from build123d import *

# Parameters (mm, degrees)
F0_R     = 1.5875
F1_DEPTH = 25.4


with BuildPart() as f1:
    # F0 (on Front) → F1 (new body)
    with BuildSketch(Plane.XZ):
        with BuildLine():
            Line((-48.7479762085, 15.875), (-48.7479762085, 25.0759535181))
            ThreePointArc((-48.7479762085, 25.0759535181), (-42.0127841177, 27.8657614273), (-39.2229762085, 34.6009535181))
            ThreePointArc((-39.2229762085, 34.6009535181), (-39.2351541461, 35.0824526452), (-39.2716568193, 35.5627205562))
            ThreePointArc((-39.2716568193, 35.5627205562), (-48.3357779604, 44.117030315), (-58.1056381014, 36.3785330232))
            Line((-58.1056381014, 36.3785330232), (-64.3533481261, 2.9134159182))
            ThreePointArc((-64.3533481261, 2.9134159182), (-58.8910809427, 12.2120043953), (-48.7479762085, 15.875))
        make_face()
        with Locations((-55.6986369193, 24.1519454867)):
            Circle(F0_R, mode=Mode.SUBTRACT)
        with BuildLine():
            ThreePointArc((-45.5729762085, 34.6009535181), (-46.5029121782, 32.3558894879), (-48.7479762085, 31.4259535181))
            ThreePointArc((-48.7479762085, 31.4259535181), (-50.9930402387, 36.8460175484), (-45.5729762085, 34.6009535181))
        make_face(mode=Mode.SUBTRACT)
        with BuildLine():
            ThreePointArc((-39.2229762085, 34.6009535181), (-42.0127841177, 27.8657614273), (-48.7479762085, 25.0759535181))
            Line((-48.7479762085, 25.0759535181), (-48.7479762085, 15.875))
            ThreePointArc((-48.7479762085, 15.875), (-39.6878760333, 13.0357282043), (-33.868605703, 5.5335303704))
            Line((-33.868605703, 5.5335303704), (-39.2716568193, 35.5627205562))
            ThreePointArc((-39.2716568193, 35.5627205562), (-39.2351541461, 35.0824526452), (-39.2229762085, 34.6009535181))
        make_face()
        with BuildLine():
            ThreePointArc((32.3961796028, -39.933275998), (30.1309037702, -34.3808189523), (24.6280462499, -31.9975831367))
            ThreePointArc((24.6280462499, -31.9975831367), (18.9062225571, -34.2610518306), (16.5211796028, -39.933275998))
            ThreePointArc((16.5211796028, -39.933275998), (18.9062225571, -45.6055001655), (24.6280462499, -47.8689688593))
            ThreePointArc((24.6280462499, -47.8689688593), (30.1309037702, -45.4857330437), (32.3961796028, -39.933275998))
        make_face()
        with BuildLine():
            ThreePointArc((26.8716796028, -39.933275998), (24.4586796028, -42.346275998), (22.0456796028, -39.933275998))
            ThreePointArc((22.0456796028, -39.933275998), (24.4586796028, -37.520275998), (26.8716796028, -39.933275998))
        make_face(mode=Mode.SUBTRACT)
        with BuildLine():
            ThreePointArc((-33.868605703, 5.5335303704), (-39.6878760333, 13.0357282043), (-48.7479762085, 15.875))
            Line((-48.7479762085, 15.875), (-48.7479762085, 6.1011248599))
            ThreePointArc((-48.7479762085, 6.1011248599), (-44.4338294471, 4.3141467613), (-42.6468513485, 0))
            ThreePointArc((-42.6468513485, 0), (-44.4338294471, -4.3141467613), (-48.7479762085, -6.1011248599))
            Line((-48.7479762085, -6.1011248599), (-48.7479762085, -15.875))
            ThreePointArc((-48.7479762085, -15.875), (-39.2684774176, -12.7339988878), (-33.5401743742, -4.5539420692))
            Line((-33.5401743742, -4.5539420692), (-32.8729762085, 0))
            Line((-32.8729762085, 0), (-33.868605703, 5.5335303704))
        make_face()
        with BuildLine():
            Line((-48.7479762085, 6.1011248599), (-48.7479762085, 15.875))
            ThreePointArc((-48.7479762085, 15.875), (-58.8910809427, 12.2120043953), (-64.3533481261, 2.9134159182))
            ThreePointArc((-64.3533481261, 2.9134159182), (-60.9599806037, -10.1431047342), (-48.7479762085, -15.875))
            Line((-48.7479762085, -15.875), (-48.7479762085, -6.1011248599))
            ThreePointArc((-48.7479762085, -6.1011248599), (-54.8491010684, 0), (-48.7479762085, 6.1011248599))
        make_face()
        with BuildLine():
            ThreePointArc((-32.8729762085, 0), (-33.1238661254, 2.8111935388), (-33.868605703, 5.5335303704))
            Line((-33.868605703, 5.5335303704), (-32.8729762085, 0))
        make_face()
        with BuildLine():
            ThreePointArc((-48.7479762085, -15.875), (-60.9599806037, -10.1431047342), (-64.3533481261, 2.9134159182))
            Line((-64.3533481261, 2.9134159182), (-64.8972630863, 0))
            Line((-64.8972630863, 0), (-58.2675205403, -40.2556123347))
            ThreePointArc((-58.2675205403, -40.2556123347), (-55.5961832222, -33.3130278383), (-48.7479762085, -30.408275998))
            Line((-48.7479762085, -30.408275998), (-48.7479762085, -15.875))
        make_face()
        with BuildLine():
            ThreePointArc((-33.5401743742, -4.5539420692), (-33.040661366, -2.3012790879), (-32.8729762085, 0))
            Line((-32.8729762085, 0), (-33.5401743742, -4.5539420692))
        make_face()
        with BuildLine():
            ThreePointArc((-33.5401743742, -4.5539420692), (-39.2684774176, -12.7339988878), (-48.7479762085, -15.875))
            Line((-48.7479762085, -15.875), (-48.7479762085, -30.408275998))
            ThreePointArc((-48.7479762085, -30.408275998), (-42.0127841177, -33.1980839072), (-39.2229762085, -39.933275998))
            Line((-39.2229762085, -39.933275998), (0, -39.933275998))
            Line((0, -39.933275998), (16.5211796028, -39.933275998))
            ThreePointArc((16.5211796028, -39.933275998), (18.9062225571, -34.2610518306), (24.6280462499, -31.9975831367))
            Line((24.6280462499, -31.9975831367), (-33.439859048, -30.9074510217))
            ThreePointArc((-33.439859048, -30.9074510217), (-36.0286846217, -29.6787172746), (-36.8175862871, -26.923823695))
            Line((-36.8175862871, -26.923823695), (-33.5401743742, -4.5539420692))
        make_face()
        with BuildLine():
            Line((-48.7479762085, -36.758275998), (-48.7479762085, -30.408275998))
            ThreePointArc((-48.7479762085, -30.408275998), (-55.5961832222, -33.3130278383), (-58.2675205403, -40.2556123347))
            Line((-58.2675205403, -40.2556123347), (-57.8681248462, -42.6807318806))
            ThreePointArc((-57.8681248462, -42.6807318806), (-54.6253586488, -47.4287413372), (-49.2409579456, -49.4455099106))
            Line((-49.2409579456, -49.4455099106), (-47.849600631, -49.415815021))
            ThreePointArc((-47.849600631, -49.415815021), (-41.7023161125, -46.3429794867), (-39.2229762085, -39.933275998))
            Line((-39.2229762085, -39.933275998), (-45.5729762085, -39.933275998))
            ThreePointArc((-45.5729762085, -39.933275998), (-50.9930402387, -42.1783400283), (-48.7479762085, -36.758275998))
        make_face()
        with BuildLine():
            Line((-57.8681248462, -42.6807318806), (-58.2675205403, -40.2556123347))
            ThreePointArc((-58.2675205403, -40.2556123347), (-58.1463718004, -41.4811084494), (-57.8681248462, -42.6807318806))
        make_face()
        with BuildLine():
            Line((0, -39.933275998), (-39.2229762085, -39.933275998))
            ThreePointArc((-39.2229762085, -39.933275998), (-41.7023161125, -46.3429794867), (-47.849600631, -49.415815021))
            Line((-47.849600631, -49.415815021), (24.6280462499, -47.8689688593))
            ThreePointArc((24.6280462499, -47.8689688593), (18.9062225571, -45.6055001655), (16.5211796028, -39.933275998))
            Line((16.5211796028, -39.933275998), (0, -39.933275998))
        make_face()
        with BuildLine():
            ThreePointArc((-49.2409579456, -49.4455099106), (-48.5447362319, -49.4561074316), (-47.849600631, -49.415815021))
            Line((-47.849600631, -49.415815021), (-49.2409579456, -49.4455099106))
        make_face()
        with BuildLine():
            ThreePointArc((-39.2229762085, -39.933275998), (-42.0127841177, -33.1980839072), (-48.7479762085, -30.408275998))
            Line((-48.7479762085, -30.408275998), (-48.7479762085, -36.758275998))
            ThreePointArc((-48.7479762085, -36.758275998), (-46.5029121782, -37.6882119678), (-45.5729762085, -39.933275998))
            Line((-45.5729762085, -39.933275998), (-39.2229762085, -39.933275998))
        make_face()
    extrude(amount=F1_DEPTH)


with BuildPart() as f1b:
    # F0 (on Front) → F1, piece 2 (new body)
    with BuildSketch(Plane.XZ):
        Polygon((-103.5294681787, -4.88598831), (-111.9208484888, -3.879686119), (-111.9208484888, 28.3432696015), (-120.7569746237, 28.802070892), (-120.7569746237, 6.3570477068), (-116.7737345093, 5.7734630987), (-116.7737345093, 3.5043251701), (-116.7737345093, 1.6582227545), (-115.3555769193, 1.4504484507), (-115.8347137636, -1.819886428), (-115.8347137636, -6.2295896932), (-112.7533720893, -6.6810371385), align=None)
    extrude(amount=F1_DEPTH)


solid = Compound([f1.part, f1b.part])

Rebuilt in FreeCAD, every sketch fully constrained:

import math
import FreeCAD as App
import Part
import Sketcher
from FreeCAD import Vector
Q = App.Units.Quantity


def add_polygon(sketch, points):
    """Adds a closed chain of lines whose ends are joined by coincident constraints."""
    first, n = sketch.GeometryCount, len(points)
    for a, b in zip(points, points[1:] + points[:1]):
        sketch.addGeometry(Part.LineSegment(App.Vector(*a, 0), App.Vector(*b, 0)), False)
    for i in range(n):
        sketch.addConstraint(Sketcher.Constraint("Coincident", first + i, 2, first + (i + 1) % n, 1))

doc = App.newDocument("Part")
params = doc.addObject("Spreadsheet::Sheet", "Params")
for row, (alias, value) in enumerate([
    ("sketch1_diameter", "0.19 in"),
    ("sketch1_diameter2", "0.125 in"),
    ("sketch1_radius", "0.3125 in"),
    ("sketch1_radius2", "0.137 in"),
    ("sketch1_radius3", "0.625 in"),
    ("pad1_length", "1 in"),
    ("pad2_length", "1 in"),
], start=1):
    params.set(f"A{row}", alias)
    params.set(f"B{row}", "=" + value)
    params.setAlias(f"B{row}", alias)

body = doc.addObject("PartDesign::Body", "Body")

# Sketch on XZ plane
sketch1 = body.newObject("Sketcher::SketchObject", "Sketch")
sketch1.AttachmentSupport = (doc.getObject("XZ_Plane"), [""])
sketch1.MapMode = "FlatFace"
sketch1.addGeometry([
    Part.LineSegment(Vector(-47.849601, -49.415815, 0), Vector(24.628046, -47.868969, 0)),  # 0
    Part.ArcOfCircle(Part.Circle(Vector(24.45868, -39.933276, 0), Vector(0, 0, 1), 7.9375), math.radians(-88.777357), math.radians(0)),  # 1
    Part.ArcOfCircle(Part.Circle(Vector(24.45868, -39.933276, 0), Vector(0, 0, 1), 7.9375), math.radians(0), math.radians(88.777357)),  # 2
    Part.ArcOfCircle(Part.Circle(Vector(24.45868, -39.933276, 0), Vector(0, 0, 1), 7.9375), math.radians(88.777357), math.radians(89.071623)),  # 3
    Part.LineSegment(Vector(24.587287, -31.996818, 0), Vector(-33.439859, -30.907451, 0)),  # 4
    Part.ArcOfCircle(Part.Circle(Vector(-33.374543, -27.428264, 0), Vector(0, 0, 1), 3.4798), math.radians(171.664895), math.radians(268.92449)),  # 5
    Part.LineSegment(Vector(-36.817586, -26.923824, 0), Vector(-33.540174, -4.553942, 0)),  # 6
    Part.ArcOfCircle(Part.Circle(Vector(-48.747976, 0, 0), Vector(0, 0, 1), 15.875), math.radians(-16.670211), math.radians(0)),  # 7
    Part.ArcOfCircle(Part.Circle(Vector(-48.747976, 0, 0), Vector(0, 0, 1), 15.875), math.radians(0), math.radians(20.399804)),  # 8
    Part.LineSegment(Vector(-33.868606, 5.53353, 0), Vector(-39.271657, 35.562721, 0)),  # 9
    Part.ArcOfCircle(Part.Circle(Vector(-48.747976, 34.600954, 0), Vector(0, 0, 1), 9.525), math.radians(5.795198), math.radians(169.244256)),  # 10
    Part.LineSegment(Vector(-58.105638, 36.378533, 0), Vector(-64.897263, 0, 0)),  # 11
    Part.LineSegment(Vector(-64.897263, 0, 0), Vector(-58.267521, -40.255612, 0)),  # 12
    Part.ArcOfCircle(Part.Circle(Vector(-48.747976, -39.933276, 0), Vector(0, 0, 1), 9.525), math.radians(-178.060678), math.radians(-163.235008)),  # 13
    Part.ArcOfCircle(Part.Circle(Vector(-48.747976, -39.933276, 0), Vector(0, 0, 1), 9.525), math.radians(-163.235008), math.radians(-92.966761)),  # 14
    Part.ArcOfCircle(Part.Circle(Vector(-48.747976, -39.933276, 0), Vector(0, 0, 1), 9.525), math.radians(-92.966761), math.radians(-84.587953)),  # 15
    Part.ArcOfCircle(Part.Circle(Vector(-48.747976, -39.933276, 0), Vector(0, 0, 1), 3.175), math.radians(90), math.radians(360)),  # 16
    Part.ArcOfCircle(Part.Circle(Vector(-48.747976, -39.933276, 0), Vector(0, 0, 1), 3.175), math.radians(0), math.radians(90)),  # 17
    Part.Circle(Vector(24.45868, -39.933276, 0), Vector(0, 0, 1), 2.413),  # 18
    Part.ArcOfCircle(Part.Circle(Vector(-48.747976, 0, 0), Vector(0, 0, 1), 6.101125), math.radians(0), math.radians(90)),  # 19
    Part.ArcOfCircle(Part.Circle(Vector(-48.747976, 0, 0), Vector(0, 0, 1), 6.101125), math.radians(-90), math.radians(0)),  # 20
    Part.ArcOfCircle(Part.Circle(Vector(-48.747976, 0, 0), Vector(0, 0, 1), 6.101125), math.radians(90), math.radians(270)),  # 21
    Part.Circle(Vector(-55.698637, 24.151945, 0), Vector(0, 0, 1), 1.5875),  # 22
    Part.ArcOfCircle(Part.Circle(Vector(-48.747976, 34.600954, 0), Vector(0, 0, 1), 3.175), math.radians(0), math.radians(270)),  # 23
    Part.ArcOfCircle(Part.Circle(Vector(-48.747976, 34.600954, 0), Vector(0, 0, 1), 3.175), math.radians(-90), math.radians(0)),  # 24
], False)
sketch1.addConstraint([
    Sketcher.Constraint("Coincident", 0, 2, 1, 1),
    Sketcher.Constraint("Coincident", 1, 2, 2, 1),
    Sketcher.Constraint("Coincident", 2, 2, 3, 1),
    Sketcher.Constraint("Coincident", 3, 2, 4, 1),
    Sketcher.Constraint("Coincident", 4, 2, 5, 2),
    Sketcher.Constraint("Coincident", 5, 1, 6, 1),
    Sketcher.Constraint("Coincident", 6, 2, 7, 1),
    Sketcher.Constraint("Coincident", 7, 2, 8, 1),
    Sketcher.Constraint("Coincident", 8, 2, 9, 1),
    Sketcher.Constraint("Coincident", 9, 2, 10, 1),
    Sketcher.Constraint("Coincident", 10, 2, 11, 1),
    Sketcher.Constraint("Coincident", 11, 2, 12, 1),
    Sketcher.Constraint("Coincident", 12, 2, 13, 1),
    Sketcher.Constraint("Coincident", 13, 2, 14, 1),
    Sketcher.Constraint("Coincident", 14, 2, 15, 1),
    Sketcher.Constraint("Coincident", 15, 2, 0, 1),
    Sketcher.Constraint("Coincident", 16, 1, 17, 2),
    Sketcher.Constraint("Coincident", 17, 1, 16, 2),
    Sketcher.Constraint("Coincident", 19, 1, 20, 2),
    Sketcher.Constraint("Coincident", 20, 1, 21, 2),
    Sketcher.Constraint("Coincident", 21, 1, 19, 2),
    Sketcher.Constraint("Coincident", 23, 1, 24, 2),
    Sketcher.Constraint("Coincident", 24, 1, 23, 2),
    Sketcher.Constraint("Coincident", 2, 3, 1, 3),
    Sketcher.Constraint("Coincident", 3, 3, 1, 3),
    Sketcher.Constraint("Coincident", 8, 3, 7, 3),
    Sketcher.Constraint("Coincident", 14, 3, 13, 3),
    Sketcher.Constraint("Coincident", 15, 3, 13, 3),
    Sketcher.Constraint("Coincident", 16, 3, 13, 3),
    Sketcher.Constraint("Coincident", 18, 3, 1, 3),
    Sketcher.Constraint("Coincident", 19, 3, 7, 3),
    Sketcher.Constraint("Coincident", 20, 3, 7, 3),
    Sketcher.Constraint("Coincident", 23, 3, 10, 3),
    Sketcher.Constraint("PointOnObject", 7, 3, -1),
    Sketcher.Constraint("PointOnObject", 7, 2, -1),
    Sketcher.Constraint("PointOnObject", 11, 2, -1),
    Sketcher.Constraint("PointOnObject", 19, 1, -1),
    Sketcher.Constraint("Diameter", 18, Q("0.19 in")),
    Sketcher.Constraint("Diameter", 22, Q("0.125 in")),
    Sketcher.Constraint("Radius", 1, Q("0.3125 in")),
    Sketcher.Constraint("Radius", 5, Q("0.137 in")),
    Sketcher.Constraint("Radius", 7, Q("0.625 in")),
    Sketcher.Constraint("Radius", 10, Q("0.375 in")),
    Sketcher.Constraint("Radius", 13, Q("0.375 in")),
    Sketcher.Constraint("Radius", 16, Q("0.125 in")),
    Sketcher.Constraint("Radius", 17, Q("0.125 in")),
    Sketcher.Constraint("Radius", 23, Q("0.125 in")),
    Sketcher.Constraint("Radius", 24, Q("0.125 in")),
    Sketcher.Constraint("DistanceX", 24, 1, 23, 1, Q("0.125 in")),
    Sketcher.Constraint("DistanceY", 24, 1, 23, 1, Q("0.125 in")),
    Sketcher.Constraint("Radius", 19, Q("6.101125 mm")),
    Sketcher.Constraint("DistanceX", 15, 2, -1, 1, Q("47.849601 mm")),
    Sketcher.Constraint("DistanceX", 7, 3, 6, 2, Q("15.207802 mm")),
    Sketcher.Constraint("DistanceX", 21, 3, 6, 2, Q("15.207802 mm")),
    Sketcher.Constraint("DistanceX", 10, 2, 22, 3, Q("2.407001 mm")),
    Sketcher.Constraint("Distance", 0, Q("72.494152 mm")),
    Sketcher.Constraint("Distance", 4, Q("58.037371 mm")),
    Sketcher.Constraint("Distance", 11, Q("37.007078 mm")),
    Sketcher.Constraint("Distance", 12, Q("40.79789 mm")),
    Sketcher.Constraint("DistanceX", -1, 1, 1, 3, Q("24.45868 mm")),
    Sketcher.Constraint("DistanceY", 0, 2, -1, 1, Q("47.868969 mm")),
    Sketcher.Constraint("DistanceX", 4, 2, -1, 1, Q("33.439859 mm")),
    Sketcher.Constraint("DistanceY", 4, 2, -1, 1, Q("30.907451 mm")),
    Sketcher.Constraint("DistanceY", -1, 1, 8, 2, Q("5.53353 mm")),
    Sketcher.Constraint("DistanceY", -1, 1, 9, 2, Q("35.562721 mm")),
    Sketcher.Constraint("DistanceX", 10, 2, -1, 1, Q("58.105638 mm")),
    Sketcher.Constraint("DistanceX", 12, 2, -1, 1, Q("58.267521 mm")),
    Sketcher.Constraint("DistanceY", 13, 2, -1, 1, Q("42.680732 mm")),
    Sketcher.Constraint("DistanceY", 14, 2, -1, 1, Q("49.44551 mm")),
    Sketcher.Constraint("DistanceX", 19, 1, -1, 1, Q("42.646851 mm")),
    Sketcher.Constraint("DistanceY", 1, 3, 5, 3, Q("12.505012 mm")),
    Sketcher.Constraint("DistanceY", 1, 3, 10, 3, Q("74.53423 mm")),
    Sketcher.Constraint("DistanceY", 13, 3, 5, 3, Q("12.505012 mm")),
    Sketcher.Constraint("DistanceX", 22, 3, 10, 3, Q("6.950661 mm")),
    Sketcher.Constraint("DistanceY", 22, 3, 10, 3, Q("10.449008 mm")),
    Sketcher.Constraint("DistanceX", 3, 2, 2, 2, Q("0.040759 mm")),
    Sketcher.Constraint("DistanceY", 5, 3, 5, 1, Q("0.50444 mm")),
    Sketcher.Constraint("DistanceY", 1, 2, -1, 1, Q("39.933276 mm")),
    Sketcher.Constraint("DistanceX", 16, 1, -1, 1, Q("48.747976 mm")),
    Sketcher.Constraint("DistanceY", 17, 1, -1, 1, Q("39.933276 mm")),
    Sketcher.Constraint("DistanceX", 20, 1, -1, 1, Q("48.747976 mm")),
    Sketcher.Constraint("DistanceX", 21, 1, -1, 1, Q("48.747976 mm")),
])
sketch1.setExpression("Constraints[37]", "Params.sketch1_diameter")
sketch1.setExpression("Constraints[38]", "Params.sketch1_diameter2")
sketch1.setExpression("Constraints[39]", "Params.sketch1_radius")
sketch1.setExpression("Constraints[40]", "Params.sketch1_radius2")
sketch1.setExpression("Constraints[41]", "Params.sketch1_radius3")
pad1 = body.newObject("PartDesign::Pad", "Pad")
pad1.Profile = sketch1
pad1.setExpression("Length", "Params.pad1_length")
body2 = doc.addObject("PartDesign::Body", "Body001")

# Sketch on XZ plane
sketch2 = body2.newObject("Sketcher::SketchObject", "Sketch001")
sketch2.AttachmentSupport = (doc.getObject("XZ_Plane001"), [""])
sketch2.MapMode = "FlatFace"
add_polygon(sketch2, [(-103.529468, -4.885988), (-111.920848, -3.879686), (-111.920848, 28.34327), (-120.756975, 28.802071), (-120.756975, 6.357048), (-116.773735, 5.773463), (-116.773735, 1.658223), (-115.355577, 1.450448), (-115.834714, -1.819886), (-115.834714, -6.22959), (-112.753372, -6.681037)])  # lines 0-10
sketch2.addConstraint([
    Sketcher.Constraint("Vertical", 1),
    Sketcher.Constraint("Vertical", 3),
    Sketcher.Constraint("Vertical", 5),
    Sketcher.Constraint("Vertical", 8),
    Sketcher.Constraint("Parallel", 4, 6),
    Sketcher.Constraint("Perpendicular", 6, 7),
    Sketcher.Constraint("Perpendicular", 7, 9),
    Sketcher.Constraint("DistanceY", 5, 2, 5, 1, Q("4.11524 mm")),
    Sketcher.Constraint("DistanceY", 1, 2, 2, 2, Q("0.458801 mm")),
    Sketcher.Constraint("DistanceY", 6, 2, 3, 2, Q("4.906599 mm")),
    Sketcher.Constraint("DistanceY", 0, 2, 7, 2, Q("2.0598 mm")),
    Sketcher.Constraint("DistanceY", 8, 2, 10, 2, Q("1.343601 mm")),
    Sketcher.Constraint("DistanceY", 10, 2, 7, 2, Q("3.066102 mm")),
    Sketcher.Constraint("Distance", 2, Q("8.848029 mm")),
    Sketcher.Constraint("DistanceY", 1, 1, 1, 2, Q("32.222956 mm")),
    Sketcher.Constraint("DistanceY", 3, 2, 3, 1, Q("22.445023 mm")),
    Sketcher.Constraint("DistanceX", 0, 2, -1, 1, Q("111.920848 mm")),
    Sketcher.Constraint("DistanceY", -1, 1, 1, 2, Q("28.34327 mm")),
    Sketcher.Constraint("DistanceX", 10, 2, -1, 1, Q("103.529468 mm")),
    Sketcher.Constraint("DistanceX", 3, 2, 4, 2, Q("3.98324 mm")),
    Sketcher.Constraint("DistanceY", 0, 2, 4, 2, Q("9.653149 mm")),
    Sketcher.Constraint("DistanceY", 9, 2, 0, 2, Q("2.801351 mm")),
])
pad2 = body2.newObject("PartDesign::Pad", "Pad001")
pad2.Profile = sketch2
pad2.setExpression("Length", "Params.pad2_length")

doc.recompute()
